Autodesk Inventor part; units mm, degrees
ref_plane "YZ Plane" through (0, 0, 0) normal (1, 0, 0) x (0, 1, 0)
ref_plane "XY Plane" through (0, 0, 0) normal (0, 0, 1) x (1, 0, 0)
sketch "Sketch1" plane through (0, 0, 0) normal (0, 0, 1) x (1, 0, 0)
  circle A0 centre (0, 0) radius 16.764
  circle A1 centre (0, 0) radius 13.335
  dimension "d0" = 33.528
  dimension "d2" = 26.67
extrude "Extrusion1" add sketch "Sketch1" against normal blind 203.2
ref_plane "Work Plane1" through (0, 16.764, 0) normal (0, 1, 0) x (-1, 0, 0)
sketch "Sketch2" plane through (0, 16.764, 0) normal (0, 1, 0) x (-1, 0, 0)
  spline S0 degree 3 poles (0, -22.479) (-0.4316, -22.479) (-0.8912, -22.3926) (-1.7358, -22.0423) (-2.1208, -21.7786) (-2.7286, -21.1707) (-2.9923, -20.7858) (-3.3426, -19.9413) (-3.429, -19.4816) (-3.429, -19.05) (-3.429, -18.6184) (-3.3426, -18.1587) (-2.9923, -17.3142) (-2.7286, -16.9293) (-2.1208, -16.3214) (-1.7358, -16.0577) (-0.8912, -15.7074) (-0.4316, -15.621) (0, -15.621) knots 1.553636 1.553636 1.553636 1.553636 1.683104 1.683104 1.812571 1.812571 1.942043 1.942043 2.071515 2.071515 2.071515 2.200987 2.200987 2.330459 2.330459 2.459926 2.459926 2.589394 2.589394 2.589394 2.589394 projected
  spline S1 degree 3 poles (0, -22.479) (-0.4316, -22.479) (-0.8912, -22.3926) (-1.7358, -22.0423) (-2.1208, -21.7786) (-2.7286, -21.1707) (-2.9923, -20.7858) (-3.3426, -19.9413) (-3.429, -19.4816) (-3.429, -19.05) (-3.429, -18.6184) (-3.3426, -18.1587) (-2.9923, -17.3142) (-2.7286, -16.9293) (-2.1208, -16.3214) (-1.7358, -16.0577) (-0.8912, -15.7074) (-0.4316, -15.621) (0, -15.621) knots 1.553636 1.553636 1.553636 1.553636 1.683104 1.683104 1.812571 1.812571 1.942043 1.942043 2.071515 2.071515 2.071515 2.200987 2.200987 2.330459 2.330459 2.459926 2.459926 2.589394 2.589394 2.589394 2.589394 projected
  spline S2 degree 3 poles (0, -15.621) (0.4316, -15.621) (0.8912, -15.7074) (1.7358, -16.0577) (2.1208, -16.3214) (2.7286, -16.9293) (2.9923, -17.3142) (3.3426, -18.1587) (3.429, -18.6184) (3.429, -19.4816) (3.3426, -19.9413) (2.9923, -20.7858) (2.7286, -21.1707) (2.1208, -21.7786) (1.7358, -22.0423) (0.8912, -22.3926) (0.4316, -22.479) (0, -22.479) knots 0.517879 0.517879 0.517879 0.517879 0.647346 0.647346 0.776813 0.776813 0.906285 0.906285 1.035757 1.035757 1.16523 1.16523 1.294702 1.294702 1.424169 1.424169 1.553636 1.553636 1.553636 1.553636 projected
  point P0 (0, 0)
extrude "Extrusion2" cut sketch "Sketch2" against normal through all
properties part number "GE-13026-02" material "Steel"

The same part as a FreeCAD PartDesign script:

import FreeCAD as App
import Part
import Sketcher
from FreeCAD import Vector
Q = App.Units.Quantity

doc = App.newDocument("Part")
body = doc.addObject("PartDesign::Body", "Body")

# Sketch on XY plane
sketch1 = doc.addObject("Sketcher::SketchObject", "Sketch")
body.addObject(sketch1)
sketch1.AttachmentSupport = (doc.XY_Plane, [""])
sketch1.MapMode = "FlatFace"
sketch1.addGeometry([
    Part.Circle(Vector(0, 0, 0), Vector(0, 0, 1), 17),
    Part.Circle(Vector(0, 0, 0), Vector(0, 0, 1), 13),
], False)
sketch1.addConstraint([
    Sketcher.Constraint("Coincident", 0, 3, -1, 1),
    Sketcher.Constraint("Coincident", 1, 3, -1, 1),
    Sketcher.Constraint("Diameter", 0, Q("1.32 in")),
    Sketcher.Constraint("Diameter", 1, Q("1.05 in")),
])
pad1 = doc.addObject("PartDesign::Pad", "Pad")
body.addObject(pad1)
pad1.Profile = sketch1
pad1.Length = Q("8 in")
pad1.Reversed = True

# Sketch on XZ plane
sketch2 = doc.addObject("Sketcher::SketchObject", "Sketch001")
body.addObject(sketch2)
sketch2.AttachmentSupport = (doc.XZ_Plane, [""])
sketch2.MapMode = "FlatFace"
sketch2.AttachmentOffset = App.Placement(Vector(0, 0, -0.66 * 25.4), App.Rotation())
sketch2.addGeometry([
    Part.BSplineCurve([Vector(0, -22.479, 0), Vector(0.4316, -22.479, 0), Vector(0.8912, -22.3926, 0), Vector(1.7358, -22.0423, 0), Vector(2.1208, -21.7786, 0), Vector(2.7286, -21.1707, 0), Vector(2.9923, -20.7858, 0), Vector(3.3426, -19.9413, 0), Vector(3.429, -19.4816, 0), Vector(3.429, -19.05, 0), Vector(3.429, -18.6184, 0), Vector(3.3426, -18.1587, 0), Vector(2.9923, -17.3142, 0), Vector(2.7286, -16.9293, 0), Vector(2.1208, -16.3214, 0), Vector(1.7358, -16.0577, 0), Vector(0.8912, -15.7074, 0), Vector(0.4316, -15.621, 0), Vector(0, -15.621, 0)], [4, 2, 2, 2, 3, 2, 2, 2, 4], [1.553636, 1.683104, 1.812571, 1.942043, 2.071515, 2.200987, 2.330459, 2.459926, 2.589394], False, 3, [1, 1, 1, 1, 1, 1, 1, 1, 1, 1, 1, 1, 1, 1, 1, 1, 1, 1, 1], False),
    Part.BSplineCurve([Vector(0, -15.621, 0), Vector(-0.4316, -15.621, 0), Vector(-0.8912, -15.7074, 0), Vector(-1.7358, -16.0577, 0), Vector(-2.1208, -16.3214, 0), Vector(-2.7286, -16.9293, 0), Vector(-2.9923, -17.3142, 0), Vector(-3.3426, -18.1587, 0), Vector(-3.429, -18.6184, 0), Vector(-3.429, -19.4816, 0), Vector(-3.3426, -19.9413, 0), Vector(-2.9923, -20.7858, 0), Vector(-2.7286, -21.1707, 0), Vector(-2.1208, -21.7786, 0), Vector(-1.7358, -22.0423, 0), Vector(-0.8912, -22.3926, 0), Vector(-0.4316, -22.479, 0), Vector(0, -22.479, 0)], [4, 2, 2, 2, 2, 2, 2, 2, 4], [0.517879, 0.647346, 0.776813, 0.906285, 1.035757, 1.16523, 1.294702, 1.424169, 1.553636], False, 3, [1, 1, 1, 1, 1, 1, 1, 1, 1, 1, 1, 1, 1, 1, 1, 1, 1, 1], False),
], False)
sketch2.addConstraint([
    Sketcher.Constraint("Block", 0),
    Sketcher.Constraint("Block", 1),
])
pocket1 = doc.addObject("PartDesign::Pocket", "Pocket")
body.addObject(pocket1)
pocket1.Profile = sketch2
pocket1.Type = "ThroughAll"
pocket1.Reversed = True

doc.recompute()
